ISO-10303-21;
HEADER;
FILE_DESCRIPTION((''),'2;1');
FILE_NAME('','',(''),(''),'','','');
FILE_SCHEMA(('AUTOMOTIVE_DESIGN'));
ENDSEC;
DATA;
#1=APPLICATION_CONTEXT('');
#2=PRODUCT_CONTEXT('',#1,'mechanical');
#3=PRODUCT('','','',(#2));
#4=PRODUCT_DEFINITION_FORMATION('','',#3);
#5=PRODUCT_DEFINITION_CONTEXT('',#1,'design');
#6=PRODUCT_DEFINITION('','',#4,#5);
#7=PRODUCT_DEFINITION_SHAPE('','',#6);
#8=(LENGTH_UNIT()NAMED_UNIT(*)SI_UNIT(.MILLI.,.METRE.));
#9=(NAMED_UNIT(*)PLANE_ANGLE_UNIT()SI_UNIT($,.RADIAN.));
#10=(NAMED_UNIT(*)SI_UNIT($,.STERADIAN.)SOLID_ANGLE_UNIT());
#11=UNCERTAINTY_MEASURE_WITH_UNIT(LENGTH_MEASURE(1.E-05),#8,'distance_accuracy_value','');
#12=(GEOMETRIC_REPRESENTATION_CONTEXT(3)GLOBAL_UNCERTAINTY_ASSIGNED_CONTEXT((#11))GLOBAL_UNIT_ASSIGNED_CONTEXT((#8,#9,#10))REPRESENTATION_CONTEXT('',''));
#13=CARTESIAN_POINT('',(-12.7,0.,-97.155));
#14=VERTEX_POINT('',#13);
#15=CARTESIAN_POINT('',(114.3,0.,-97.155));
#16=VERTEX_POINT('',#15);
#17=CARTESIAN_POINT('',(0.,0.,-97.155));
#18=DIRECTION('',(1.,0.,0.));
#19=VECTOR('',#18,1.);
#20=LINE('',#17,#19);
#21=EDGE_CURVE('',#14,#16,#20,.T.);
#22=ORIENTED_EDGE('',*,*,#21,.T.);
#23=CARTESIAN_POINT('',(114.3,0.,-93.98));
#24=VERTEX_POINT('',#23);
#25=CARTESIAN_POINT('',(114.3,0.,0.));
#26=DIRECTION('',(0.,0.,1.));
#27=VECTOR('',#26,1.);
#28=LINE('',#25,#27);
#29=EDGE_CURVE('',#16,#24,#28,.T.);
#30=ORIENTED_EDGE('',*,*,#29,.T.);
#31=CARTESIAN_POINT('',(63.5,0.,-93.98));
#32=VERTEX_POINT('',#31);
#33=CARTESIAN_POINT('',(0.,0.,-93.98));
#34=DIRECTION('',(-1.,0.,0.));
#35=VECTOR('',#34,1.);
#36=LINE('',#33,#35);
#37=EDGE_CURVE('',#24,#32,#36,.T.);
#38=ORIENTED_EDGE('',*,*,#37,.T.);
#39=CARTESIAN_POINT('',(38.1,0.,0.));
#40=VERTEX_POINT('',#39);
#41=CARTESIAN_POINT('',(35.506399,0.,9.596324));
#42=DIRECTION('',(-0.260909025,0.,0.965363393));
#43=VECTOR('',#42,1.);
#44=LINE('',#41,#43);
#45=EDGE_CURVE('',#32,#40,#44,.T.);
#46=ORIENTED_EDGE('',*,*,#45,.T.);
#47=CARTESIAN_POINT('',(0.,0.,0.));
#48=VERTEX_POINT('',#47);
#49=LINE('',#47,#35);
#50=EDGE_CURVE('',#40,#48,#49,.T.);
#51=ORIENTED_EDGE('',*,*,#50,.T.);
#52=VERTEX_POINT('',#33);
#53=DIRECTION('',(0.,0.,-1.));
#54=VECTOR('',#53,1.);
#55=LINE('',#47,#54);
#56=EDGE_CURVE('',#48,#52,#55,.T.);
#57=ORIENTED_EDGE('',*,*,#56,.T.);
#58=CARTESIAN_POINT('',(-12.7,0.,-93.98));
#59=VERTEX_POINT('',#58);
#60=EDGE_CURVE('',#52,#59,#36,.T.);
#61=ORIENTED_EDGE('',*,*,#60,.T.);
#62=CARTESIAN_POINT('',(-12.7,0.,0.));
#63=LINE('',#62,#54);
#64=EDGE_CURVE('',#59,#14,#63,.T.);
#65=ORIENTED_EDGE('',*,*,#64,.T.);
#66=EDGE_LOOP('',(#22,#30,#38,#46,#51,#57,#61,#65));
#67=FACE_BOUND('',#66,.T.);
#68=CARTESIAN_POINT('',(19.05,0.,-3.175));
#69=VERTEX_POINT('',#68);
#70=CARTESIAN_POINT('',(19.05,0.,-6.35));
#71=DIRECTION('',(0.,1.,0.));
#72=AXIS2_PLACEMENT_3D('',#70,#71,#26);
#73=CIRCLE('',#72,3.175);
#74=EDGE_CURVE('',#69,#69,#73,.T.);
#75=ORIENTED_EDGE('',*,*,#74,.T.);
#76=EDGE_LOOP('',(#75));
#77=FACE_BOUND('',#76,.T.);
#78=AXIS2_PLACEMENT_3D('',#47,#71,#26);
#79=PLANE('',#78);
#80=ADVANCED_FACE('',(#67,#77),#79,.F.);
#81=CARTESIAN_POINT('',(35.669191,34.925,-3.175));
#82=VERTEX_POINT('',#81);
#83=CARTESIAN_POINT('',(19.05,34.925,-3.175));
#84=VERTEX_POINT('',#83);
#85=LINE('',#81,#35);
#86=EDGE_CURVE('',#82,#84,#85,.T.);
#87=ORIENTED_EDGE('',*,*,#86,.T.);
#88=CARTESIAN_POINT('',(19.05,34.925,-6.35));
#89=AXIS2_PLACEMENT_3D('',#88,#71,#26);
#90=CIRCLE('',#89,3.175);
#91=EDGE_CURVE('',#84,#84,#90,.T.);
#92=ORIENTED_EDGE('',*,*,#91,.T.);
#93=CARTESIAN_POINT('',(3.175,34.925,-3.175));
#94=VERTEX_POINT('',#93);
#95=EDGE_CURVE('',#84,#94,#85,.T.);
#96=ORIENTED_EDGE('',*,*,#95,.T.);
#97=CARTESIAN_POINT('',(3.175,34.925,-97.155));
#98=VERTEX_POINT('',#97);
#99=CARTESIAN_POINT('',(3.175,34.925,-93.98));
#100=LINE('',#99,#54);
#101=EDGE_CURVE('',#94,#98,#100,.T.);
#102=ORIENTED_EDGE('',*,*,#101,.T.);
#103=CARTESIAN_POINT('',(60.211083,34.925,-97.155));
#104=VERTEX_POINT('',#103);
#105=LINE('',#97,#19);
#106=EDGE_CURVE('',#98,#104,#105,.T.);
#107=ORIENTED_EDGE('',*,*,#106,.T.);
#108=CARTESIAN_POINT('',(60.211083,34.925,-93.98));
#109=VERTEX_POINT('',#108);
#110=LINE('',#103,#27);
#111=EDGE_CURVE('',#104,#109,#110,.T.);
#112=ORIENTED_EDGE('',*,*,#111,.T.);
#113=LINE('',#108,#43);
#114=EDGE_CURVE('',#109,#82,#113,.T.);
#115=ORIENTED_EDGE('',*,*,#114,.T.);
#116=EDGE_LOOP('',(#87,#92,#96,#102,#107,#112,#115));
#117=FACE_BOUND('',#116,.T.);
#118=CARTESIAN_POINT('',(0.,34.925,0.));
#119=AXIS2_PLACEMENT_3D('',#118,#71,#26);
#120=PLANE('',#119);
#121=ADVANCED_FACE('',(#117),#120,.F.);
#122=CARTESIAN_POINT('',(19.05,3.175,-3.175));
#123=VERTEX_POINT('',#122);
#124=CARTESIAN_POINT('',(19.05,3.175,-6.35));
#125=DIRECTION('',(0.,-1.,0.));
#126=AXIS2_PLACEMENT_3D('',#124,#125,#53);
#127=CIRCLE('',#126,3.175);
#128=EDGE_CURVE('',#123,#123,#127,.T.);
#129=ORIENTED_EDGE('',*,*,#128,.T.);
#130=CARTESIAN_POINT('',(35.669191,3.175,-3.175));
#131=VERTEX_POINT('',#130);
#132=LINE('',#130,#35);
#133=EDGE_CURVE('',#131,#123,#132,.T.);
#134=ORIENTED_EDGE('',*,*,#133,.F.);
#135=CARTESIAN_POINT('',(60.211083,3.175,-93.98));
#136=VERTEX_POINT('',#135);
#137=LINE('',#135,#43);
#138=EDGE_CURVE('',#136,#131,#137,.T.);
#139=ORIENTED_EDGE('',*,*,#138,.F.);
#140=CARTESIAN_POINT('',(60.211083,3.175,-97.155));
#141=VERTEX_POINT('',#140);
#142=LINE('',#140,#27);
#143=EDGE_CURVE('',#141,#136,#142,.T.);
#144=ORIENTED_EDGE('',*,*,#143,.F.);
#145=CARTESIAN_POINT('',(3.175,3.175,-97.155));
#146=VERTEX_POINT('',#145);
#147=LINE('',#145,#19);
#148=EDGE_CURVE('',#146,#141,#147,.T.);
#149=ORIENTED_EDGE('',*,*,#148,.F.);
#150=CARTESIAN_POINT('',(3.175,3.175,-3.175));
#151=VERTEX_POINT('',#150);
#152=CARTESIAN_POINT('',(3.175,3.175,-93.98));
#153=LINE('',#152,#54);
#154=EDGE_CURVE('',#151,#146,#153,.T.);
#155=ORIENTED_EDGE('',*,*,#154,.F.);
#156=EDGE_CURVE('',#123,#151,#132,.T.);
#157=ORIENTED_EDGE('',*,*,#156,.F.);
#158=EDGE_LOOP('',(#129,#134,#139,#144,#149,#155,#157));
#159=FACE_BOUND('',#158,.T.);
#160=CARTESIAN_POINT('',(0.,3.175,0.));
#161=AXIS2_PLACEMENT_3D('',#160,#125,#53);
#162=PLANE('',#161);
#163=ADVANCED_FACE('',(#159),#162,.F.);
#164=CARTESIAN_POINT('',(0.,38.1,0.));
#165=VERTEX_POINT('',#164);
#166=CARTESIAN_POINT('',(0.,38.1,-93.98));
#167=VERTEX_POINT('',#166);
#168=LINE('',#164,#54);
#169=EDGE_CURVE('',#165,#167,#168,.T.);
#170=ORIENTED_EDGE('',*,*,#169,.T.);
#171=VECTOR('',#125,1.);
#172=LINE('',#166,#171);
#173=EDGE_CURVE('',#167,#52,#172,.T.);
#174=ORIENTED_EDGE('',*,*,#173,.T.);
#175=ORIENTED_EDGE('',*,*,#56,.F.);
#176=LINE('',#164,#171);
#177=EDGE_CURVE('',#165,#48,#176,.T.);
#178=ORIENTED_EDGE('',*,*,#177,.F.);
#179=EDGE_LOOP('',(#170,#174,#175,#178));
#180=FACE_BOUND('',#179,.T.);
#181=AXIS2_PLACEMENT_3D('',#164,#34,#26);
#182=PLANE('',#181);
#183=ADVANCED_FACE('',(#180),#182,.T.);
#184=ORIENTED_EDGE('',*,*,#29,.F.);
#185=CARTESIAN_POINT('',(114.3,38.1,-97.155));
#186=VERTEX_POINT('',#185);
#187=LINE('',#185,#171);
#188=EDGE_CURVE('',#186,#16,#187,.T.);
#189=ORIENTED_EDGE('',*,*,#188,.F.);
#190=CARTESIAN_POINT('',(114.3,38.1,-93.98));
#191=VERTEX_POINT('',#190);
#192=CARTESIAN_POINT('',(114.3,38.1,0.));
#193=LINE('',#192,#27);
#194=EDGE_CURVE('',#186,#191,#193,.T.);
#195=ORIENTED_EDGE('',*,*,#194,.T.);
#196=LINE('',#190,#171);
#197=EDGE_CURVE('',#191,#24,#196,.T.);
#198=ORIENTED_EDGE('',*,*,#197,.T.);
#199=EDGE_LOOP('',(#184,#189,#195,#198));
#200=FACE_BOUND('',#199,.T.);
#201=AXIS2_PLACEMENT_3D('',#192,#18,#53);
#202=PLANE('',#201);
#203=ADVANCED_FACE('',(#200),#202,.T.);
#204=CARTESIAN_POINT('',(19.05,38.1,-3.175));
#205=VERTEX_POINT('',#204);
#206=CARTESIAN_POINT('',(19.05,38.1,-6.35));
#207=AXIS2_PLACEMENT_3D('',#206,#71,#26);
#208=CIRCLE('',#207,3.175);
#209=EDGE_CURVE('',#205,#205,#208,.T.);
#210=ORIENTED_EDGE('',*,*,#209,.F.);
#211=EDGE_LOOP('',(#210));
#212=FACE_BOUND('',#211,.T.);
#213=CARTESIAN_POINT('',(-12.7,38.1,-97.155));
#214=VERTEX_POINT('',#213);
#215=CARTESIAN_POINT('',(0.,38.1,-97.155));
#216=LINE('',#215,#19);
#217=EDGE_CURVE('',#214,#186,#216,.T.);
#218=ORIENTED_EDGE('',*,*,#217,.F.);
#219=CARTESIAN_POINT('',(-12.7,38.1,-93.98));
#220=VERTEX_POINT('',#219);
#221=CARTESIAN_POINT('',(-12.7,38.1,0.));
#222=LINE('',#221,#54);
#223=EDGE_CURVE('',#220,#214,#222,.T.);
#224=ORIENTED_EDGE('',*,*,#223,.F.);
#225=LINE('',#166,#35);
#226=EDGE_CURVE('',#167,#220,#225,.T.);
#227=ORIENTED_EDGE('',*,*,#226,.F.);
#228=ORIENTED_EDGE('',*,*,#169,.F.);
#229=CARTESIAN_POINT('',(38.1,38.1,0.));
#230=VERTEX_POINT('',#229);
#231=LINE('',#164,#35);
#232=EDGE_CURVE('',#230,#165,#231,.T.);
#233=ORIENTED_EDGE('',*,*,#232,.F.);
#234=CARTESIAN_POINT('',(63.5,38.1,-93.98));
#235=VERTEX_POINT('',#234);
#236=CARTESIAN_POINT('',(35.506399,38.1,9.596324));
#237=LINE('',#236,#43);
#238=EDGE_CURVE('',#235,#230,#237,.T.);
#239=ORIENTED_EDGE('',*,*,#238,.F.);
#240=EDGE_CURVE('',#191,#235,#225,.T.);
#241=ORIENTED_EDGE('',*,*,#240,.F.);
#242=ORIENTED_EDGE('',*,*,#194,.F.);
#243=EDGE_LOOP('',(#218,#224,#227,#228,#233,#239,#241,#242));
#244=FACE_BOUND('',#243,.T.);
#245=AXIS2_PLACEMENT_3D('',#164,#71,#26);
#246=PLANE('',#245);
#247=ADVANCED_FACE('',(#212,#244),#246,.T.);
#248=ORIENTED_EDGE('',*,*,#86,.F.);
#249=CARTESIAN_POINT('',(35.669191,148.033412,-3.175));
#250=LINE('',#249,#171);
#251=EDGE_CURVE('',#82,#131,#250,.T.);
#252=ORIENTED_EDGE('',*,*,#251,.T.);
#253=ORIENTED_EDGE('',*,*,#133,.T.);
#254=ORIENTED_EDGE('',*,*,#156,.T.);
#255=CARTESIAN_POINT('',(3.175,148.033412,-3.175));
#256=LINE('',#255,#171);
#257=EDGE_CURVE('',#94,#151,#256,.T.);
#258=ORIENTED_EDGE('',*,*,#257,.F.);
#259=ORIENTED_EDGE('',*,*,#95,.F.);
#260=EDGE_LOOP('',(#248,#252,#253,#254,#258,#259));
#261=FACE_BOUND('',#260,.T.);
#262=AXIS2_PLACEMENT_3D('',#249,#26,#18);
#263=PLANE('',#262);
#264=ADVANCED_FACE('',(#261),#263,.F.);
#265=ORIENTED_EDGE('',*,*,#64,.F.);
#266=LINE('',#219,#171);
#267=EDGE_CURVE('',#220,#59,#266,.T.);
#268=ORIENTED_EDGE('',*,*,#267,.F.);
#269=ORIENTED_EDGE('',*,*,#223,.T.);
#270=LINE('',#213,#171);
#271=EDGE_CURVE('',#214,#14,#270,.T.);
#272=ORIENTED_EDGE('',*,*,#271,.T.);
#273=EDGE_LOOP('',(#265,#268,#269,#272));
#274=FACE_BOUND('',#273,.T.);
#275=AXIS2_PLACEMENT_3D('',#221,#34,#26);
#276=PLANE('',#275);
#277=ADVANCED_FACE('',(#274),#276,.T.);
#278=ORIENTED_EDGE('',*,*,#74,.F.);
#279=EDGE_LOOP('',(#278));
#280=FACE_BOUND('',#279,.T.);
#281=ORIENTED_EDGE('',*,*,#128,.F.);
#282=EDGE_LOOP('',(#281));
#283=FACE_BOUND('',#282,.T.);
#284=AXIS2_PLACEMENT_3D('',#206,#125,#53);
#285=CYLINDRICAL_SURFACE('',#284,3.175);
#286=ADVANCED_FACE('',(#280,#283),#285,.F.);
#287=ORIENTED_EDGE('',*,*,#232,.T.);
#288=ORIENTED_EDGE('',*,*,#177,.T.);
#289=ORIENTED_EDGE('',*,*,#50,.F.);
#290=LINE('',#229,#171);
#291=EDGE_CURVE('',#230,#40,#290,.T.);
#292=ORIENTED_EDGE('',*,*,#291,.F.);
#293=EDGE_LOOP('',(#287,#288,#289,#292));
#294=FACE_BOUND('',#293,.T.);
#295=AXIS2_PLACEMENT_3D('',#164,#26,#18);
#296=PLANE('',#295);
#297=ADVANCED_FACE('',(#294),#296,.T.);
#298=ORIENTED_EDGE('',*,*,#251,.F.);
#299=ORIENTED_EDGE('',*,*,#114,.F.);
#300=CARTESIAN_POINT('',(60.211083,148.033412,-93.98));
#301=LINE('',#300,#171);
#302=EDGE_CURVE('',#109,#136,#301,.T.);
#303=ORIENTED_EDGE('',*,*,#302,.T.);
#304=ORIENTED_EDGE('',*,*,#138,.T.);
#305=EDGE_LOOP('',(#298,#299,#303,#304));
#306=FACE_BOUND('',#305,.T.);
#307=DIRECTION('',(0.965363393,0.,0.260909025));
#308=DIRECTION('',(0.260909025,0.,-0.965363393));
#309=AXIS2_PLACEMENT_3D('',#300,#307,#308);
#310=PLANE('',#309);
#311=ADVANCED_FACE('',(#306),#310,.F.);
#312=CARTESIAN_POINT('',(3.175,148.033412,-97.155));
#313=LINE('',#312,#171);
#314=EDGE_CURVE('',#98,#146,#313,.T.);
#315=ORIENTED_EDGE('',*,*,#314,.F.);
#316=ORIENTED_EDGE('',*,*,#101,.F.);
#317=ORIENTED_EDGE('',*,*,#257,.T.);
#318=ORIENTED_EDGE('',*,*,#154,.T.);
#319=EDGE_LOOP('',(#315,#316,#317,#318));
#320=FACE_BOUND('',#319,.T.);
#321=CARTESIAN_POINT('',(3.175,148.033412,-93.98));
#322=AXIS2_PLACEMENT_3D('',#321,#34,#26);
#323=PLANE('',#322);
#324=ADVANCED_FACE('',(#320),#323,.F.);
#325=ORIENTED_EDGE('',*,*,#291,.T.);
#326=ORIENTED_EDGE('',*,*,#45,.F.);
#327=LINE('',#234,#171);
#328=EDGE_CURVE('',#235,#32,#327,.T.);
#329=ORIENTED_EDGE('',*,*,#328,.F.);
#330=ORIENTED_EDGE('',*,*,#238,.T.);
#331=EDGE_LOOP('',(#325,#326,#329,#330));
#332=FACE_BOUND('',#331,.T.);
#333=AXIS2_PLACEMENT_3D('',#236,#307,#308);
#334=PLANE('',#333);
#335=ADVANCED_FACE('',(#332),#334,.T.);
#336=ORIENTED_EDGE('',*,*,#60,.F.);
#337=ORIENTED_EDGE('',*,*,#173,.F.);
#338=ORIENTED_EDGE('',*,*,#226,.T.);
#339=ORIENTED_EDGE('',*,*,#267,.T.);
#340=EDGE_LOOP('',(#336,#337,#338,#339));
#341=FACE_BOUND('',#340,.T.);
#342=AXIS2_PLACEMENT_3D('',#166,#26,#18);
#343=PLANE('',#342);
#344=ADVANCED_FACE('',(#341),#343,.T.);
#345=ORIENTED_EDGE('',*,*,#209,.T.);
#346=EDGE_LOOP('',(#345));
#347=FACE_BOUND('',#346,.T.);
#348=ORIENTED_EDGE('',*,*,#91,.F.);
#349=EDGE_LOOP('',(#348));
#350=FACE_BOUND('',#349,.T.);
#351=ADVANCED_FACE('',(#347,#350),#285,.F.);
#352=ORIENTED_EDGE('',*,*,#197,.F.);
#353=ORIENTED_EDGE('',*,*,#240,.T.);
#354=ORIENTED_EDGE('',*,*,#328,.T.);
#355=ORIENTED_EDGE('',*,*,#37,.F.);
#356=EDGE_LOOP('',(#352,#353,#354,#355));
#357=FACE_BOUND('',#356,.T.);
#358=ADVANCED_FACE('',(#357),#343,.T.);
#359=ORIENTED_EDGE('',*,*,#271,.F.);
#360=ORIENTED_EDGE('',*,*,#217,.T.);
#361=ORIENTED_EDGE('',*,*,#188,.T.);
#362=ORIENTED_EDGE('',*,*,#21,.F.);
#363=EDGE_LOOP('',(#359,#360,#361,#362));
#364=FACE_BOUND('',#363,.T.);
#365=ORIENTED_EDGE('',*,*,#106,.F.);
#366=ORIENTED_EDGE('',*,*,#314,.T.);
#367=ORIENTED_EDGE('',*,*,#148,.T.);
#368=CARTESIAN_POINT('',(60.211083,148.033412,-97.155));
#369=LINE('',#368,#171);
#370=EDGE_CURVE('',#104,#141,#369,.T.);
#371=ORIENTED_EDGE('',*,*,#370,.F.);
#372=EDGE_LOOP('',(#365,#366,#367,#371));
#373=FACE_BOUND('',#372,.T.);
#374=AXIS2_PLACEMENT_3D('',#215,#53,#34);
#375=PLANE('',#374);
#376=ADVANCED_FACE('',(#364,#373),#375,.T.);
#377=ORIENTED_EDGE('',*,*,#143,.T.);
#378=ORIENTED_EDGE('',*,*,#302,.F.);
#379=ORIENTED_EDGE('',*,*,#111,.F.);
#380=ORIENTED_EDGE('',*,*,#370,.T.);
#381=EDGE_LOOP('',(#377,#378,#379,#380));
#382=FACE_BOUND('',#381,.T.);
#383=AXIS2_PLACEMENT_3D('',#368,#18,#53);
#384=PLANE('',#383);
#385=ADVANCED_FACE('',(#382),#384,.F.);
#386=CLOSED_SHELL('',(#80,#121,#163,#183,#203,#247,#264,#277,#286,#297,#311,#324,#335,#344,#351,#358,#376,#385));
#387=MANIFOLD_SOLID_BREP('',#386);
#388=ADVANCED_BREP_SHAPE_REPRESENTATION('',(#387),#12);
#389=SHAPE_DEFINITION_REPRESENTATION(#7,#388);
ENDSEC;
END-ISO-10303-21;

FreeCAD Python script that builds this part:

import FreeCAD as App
import Part
import Sketcher

V = App.Vector
Q = App.Units.Quantity


def add_polygon(sketch, points):
    """Adds a closed chain of lines whose ends are joined by coincident constraints."""
    first, n = sketch.GeometryCount, len(points)
    for a, b in zip(points, points[1:] + points[:1]):
        sketch.addGeometry(Part.LineSegment(App.Vector(*a, 0), App.Vector(*b, 0)), False)
    for i in range(n):
        sketch.addConstraint(Sketcher.Constraint("Coincident", first + i, 2, first + (i + 1) % n, 1))

doc = App.newDocument("Part")
params = doc.addObject("Spreadsheet::Sheet", "Params")
for row, (alias, value) in enumerate([
    ("sketch1_diameter", "0.25 in"),
    ("sketch1_width", "2 in"),
    ("sketch1_width2", "5 in"),
    ("sketch1_width3", "0.5 in"),
    ("sketch1_width4", "1.5 in"),
    ("pad1_length", "1.5 in"),
    ("sketch2_height", "3.7 in"),
    ("sketch2_height2", "0.125 in"),
    ("pocket1_length", "1.25 in"),
], start=1):
    params.set(f"A{row}", alias)
    params.set(f"B{row}", "=" + value)
    params.setAlias(f"B{row}", alias)

body = doc.addObject("PartDesign::Body", "Body")

# Sketch on XZ plane
sketch1 = body.newObject("Sketcher::SketchObject", "Sketch")
sketch1.AttachmentSupport = (doc.getObject("XZ_Plane"), [""])
sketch1.MapMode = "FlatFace"
add_polygon(sketch1, [(-12.7, -97.2), (-12.7, -94), (0, -94), (0, 0), (38.1, 0), (63.5, -94), (114.3, -94), (114.3, -97.2)])  # lines 0-7
sketch1.addGeometry(Part.Circle(V(19.1, -6.3, 0), V(0, 0, 1), 3.2), False)  # 8
sketch1.addConstraint([
    Sketcher.Constraint("Vertical", 0),
    Sketcher.Constraint("Horizontal", 1),
    Sketcher.Constraint("Vertical", 2),
    Sketcher.Constraint("Horizontal", 3),
    Sketcher.Constraint("Horizontal", 5),
    Sketcher.Constraint("Vertical", 6),
    Sketcher.Constraint("Horizontal", 7),
    Sketcher.Constraint("Coincident", 2, 2, -1, 1),
    Sketcher.Constraint("Horizontal", 1, 2, 4, 2),
    Sketcher.Constraint("Diameter", 8, Q("0.25 in")),
    Sketcher.Constraint("DistanceX", 5, 1, 5, 2, Q("2 in")),
    Sketcher.Constraint("DistanceX", 7, 2, 7, 1, Q("5 in")),
    Sketcher.Constraint("DistanceX", 1, 1, 1, 2, Q("0.5 in")),
    Sketcher.Constraint("DistanceX", 3, 1, 3, 2, Q("1.5 in")),
    Sketcher.Constraint("DistanceY", 2, 1, 2, 2, Q("3.7 in")),
    Sketcher.Constraint("DistanceY", 0, 1, 0, 2, Q("0.125 in")),
    Sketcher.Constraint("DistanceX", -1, 1, 8, 3, Q("0.75 in")),
    Sketcher.Constraint("DistanceY", 8, 3, -1, 1, Q("0.25 in")),
])
sketch1.setExpression("Constraints[17]", "Params.sketch1_diameter")
sketch1.setExpression("Constraints[18]", "Params.sketch1_width")
sketch1.setExpression("Constraints[19]", "Params.sketch1_width2")
sketch1.setExpression("Constraints[20]", "Params.sketch1_width3")
sketch1.setExpression("Constraints[21]", "Params.sketch1_width4")
pad1 = body.newObject("PartDesign::Pad", "Pad")
pad1.Profile = sketch1
pad1.setExpression("Length", "Params.pad1_length")
pad1.Reversed = True

# Sketch on XZ plane
sketch2 = body.newObject("Sketcher::SketchObject", "Sketch001")
sketch2.AttachmentSupport = (doc.getObject("XZ_Plane"), [""])
sketch2.MapMode = "FlatFace"
sketch2.AttachmentOffset = App.Placement(V(0, 0, -1.375 * 25.4), App.Rotation())
add_polygon(sketch2, [(60.2, -97.2), (60.2, -94), (35.7, -3.2), (3.2, -3.2), (3.2, -97.2)])  # lines 0-4
sketch2.addConstraint([
    Sketcher.Constraint("Vertical", 0),
    Sketcher.Constraint("Horizontal", 2),
    Sketcher.Constraint("Vertical", 3),
    Sketcher.Constraint("Horizontal", 4),
    Sketcher.Constraint("DistanceY", 3, 2, 3, 1, Q("3.7 in")),
    Sketcher.Constraint("DistanceY", 0, 2, -1, 1, Q("3.7 in")),
    Sketcher.Constraint("DistanceY", 0, 1, 0, 2, Q("0.125 in")),
    Sketcher.Constraint("DistanceX", -1, 1, 2, 2, Q("0.125 in")),
    Sketcher.Constraint("DistanceX", 2, 2, 2, 1, 32.494191),
    Sketcher.Constraint("DistanceX", 4, 1, 4, 2, 57.036083),
])
sketch2.setExpression("Constraints[9]", "Params.sketch2_height")
sketch2.setExpression("Constraints[11]", "Params.sketch2_height2")
pocket1 = body.newObject("PartDesign::Pocket", "Pocket")
pocket1.Profile = sketch2
pocket1.setExpression("Length", "Params.pocket1_length")
pocket1.Reversed = True

doc.recompute()
